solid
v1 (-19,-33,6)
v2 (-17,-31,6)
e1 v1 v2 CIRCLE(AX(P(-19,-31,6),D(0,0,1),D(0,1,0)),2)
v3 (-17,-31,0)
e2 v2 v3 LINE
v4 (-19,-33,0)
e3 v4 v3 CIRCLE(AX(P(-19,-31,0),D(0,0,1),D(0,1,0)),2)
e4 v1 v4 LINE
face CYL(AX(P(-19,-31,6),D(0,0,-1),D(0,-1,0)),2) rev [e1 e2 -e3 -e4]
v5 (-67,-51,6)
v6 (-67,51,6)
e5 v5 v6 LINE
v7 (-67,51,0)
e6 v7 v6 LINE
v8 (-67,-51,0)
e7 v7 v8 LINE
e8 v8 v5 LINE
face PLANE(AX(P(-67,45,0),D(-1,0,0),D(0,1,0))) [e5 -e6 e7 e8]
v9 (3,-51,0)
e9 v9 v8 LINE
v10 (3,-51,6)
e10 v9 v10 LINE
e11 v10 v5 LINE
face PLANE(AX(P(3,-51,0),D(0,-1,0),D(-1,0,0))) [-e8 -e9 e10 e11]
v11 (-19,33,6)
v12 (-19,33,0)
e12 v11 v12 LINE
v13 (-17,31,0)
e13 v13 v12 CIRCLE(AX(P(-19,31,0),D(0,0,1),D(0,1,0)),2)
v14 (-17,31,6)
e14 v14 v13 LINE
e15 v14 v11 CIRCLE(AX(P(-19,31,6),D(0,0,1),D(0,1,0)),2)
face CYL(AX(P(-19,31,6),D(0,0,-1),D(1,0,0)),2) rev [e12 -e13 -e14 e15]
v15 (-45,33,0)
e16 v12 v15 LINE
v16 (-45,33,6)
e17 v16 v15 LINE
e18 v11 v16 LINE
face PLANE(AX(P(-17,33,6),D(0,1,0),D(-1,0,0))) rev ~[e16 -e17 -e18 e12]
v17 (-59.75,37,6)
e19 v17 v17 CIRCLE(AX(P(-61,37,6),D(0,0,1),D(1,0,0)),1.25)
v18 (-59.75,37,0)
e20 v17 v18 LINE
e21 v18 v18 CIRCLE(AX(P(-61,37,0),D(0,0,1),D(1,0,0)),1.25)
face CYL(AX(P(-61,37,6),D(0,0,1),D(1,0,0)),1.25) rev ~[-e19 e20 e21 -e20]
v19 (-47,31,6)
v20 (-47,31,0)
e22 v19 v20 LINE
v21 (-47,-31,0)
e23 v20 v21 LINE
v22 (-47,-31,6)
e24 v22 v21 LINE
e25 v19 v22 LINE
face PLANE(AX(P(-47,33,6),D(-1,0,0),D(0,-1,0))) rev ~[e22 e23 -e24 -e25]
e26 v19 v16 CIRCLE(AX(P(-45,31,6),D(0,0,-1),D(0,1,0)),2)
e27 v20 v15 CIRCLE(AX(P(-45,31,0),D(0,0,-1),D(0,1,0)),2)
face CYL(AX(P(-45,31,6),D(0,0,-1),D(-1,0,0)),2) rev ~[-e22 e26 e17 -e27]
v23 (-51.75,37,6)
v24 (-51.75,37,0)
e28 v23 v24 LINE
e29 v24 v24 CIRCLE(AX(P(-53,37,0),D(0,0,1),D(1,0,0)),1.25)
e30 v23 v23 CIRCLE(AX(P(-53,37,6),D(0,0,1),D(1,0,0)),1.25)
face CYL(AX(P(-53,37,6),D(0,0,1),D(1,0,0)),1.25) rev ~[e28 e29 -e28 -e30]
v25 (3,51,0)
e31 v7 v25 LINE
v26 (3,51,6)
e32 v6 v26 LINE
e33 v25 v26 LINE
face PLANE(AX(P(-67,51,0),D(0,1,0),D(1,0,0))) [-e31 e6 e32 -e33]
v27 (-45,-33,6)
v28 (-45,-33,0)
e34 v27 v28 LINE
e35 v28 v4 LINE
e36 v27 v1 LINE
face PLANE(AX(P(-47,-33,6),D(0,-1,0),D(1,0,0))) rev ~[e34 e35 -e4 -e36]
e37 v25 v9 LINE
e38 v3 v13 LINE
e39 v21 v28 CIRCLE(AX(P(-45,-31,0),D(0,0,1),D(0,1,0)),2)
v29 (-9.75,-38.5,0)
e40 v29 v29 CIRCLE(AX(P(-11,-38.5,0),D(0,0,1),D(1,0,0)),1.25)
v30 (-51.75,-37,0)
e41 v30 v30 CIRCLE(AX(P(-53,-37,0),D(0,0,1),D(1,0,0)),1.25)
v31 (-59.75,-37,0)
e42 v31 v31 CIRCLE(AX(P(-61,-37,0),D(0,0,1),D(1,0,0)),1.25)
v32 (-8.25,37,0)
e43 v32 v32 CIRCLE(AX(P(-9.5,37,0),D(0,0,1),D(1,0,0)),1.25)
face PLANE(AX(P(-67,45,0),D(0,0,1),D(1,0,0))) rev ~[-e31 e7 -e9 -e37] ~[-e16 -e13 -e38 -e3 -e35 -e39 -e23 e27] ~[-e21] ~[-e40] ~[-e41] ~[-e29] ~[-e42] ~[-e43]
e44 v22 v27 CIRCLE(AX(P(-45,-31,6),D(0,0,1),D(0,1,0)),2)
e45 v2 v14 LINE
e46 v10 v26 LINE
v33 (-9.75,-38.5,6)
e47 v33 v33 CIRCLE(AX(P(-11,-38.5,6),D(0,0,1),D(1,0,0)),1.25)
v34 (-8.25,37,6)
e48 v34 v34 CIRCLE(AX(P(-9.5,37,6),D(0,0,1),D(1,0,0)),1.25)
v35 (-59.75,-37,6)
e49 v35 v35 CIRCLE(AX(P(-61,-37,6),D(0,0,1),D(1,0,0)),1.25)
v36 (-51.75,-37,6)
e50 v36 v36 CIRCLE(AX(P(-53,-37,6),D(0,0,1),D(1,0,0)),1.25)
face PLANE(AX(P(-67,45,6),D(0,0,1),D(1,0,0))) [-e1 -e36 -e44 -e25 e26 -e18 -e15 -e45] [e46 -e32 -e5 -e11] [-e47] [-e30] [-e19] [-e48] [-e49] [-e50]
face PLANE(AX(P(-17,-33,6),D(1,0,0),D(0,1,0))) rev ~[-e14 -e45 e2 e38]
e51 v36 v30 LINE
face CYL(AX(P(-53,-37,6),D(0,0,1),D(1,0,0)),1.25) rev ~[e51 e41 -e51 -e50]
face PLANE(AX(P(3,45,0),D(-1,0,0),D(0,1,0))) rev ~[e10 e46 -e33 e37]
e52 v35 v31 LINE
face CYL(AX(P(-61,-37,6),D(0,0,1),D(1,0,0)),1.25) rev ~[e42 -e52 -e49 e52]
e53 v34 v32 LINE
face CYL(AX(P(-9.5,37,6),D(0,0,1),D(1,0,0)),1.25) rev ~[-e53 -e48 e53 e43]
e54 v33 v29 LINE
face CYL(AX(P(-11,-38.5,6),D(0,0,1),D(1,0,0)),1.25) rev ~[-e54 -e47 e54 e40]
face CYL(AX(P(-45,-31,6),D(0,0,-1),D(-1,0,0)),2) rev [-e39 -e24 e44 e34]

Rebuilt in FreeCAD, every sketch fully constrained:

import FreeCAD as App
import Part
import Sketcher

V = App.Vector


def edges_at(feature, points):
    """Names of the edges that pass closest to the given points."""
    edges = feature.Shape.Edges
    near = lambda p: min(range(len(edges)), key=lambda i: edges[i].distToShape(Part.Vertex(*p))[0])
    return sorted({f"Edge{near(p) + 1}" for p in points})

doc = App.newDocument("Part")
body = doc.addObject("PartDesign::Body", "Body")

# Sketch on XY plane
sketch1 = doc.addObject("Sketcher::SketchObject", "Sketch")
body.addObject(sketch1)
sketch1.AttachmentSupport = (doc.XY_Plane, [""])
sketch1.MapMode = "FlatFace"
sketch1.addGeometry([
    Part.LineSegment(V(-67, 51, 0), V(-67, -51, 0)),
    Part.LineSegment(V(-67, -51, 0), V(3, -51, 0)),
    Part.LineSegment(V(3, -51, 0), V(3, 51, 0)),
    Part.LineSegment(V(3, 51, 0), V(-67, 51, 0)),
], False)
sketch1.addConstraint([
    Sketcher.Constraint("Coincident", 0, 2, 1, 1),
    Sketcher.Constraint("Coincident", 1, 2, 2, 1),
    Sketcher.Constraint("Coincident", 2, 2, 3, 1),
    Sketcher.Constraint("Coincident", 3, 2, 0, 1),
    Sketcher.Constraint("Vertical", 0),
    Sketcher.Constraint("Horizontal", 1),
    Sketcher.Constraint("Vertical", 2),
    Sketcher.Constraint("Horizontal", 3),
    Sketcher.Constraint("DistanceX", 1, 1, 1, 2, 70.0),
    Sketcher.Constraint("DistanceY", 0, 2, 0, 1, 102.0),
    Sketcher.Constraint("DistanceX", 0, 2, -1, 1, 67.0),
    Sketcher.Constraint("DistanceY", 0, 2, -1, 1, 51.0),
])
pad1 = doc.addObject("PartDesign::Pad", "Pad")
body.addObject(pad1)
pad1.Profile = sketch1
pad1.Length = 6

# Sketch on XY plane
sketch2 = doc.addObject("Sketcher::SketchObject", "Sketch001")
body.addObject(sketch2)
sketch2.AttachmentSupport = (doc.XY_Plane, [""])
sketch2.MapMode = "FlatFace"
sketch2.AttachmentOffset = App.Placement(V(0, 0, 6), App.Rotation())
sketch2.addGeometry([
    Part.Circle(V(-61, 37, 0), V(0, 0, 1), 1.25),  # 0
    Part.Circle(V(-53, 37, 0), V(0, 0, 1), 1.25),  # 1
    Part.Circle(V(-9.5, 37, 0), V(0, 0, 1), 1.25),  # 2
    Part.Circle(V(-11, -38.5, 0), V(0, 0, 1), 1.25),  # 3
    Part.Circle(V(-53, -37, 0), V(0, 0, 1), 1.25),  # 4
    Part.Circle(V(-61, -37, 0), V(0, 0, 1), 1.25),  # 5
], False)
sketch2.addConstraint([
    Sketcher.Constraint("Equal", 0, 1),
    Sketcher.Constraint("Equal", 1, 2),
    Sketcher.Constraint("Equal", 2, 3),
    Sketcher.Constraint("Equal", 3, 4),
    Sketcher.Constraint("Equal", 4, 5),
    Sketcher.Constraint("Symmetric", 1, 3, 4, 3, -1),
    Sketcher.Constraint("Symmetric", 0, 3, 5, 3, -1),
    Sketcher.Constraint("Horizontal", 0, 3, 1, 3),
    Sketcher.Constraint("Horizontal", 1, 3, 2, 3),
    Sketcher.Constraint("Diameter", 0, 2.5),
    Sketcher.Constraint("DistanceX", 0, 3, -1, 1, 61.0),
    Sketcher.Constraint("DistanceY", -1, 1, 0, 3, 37.0),
    Sketcher.Constraint("DistanceX", 1, 3, -1, 1, 53.0),
    Sketcher.Constraint("DistanceX", 3, 3, -1, 1, 11.0),
    Sketcher.Constraint("DistanceX", 2, 3, -1, 1, 9.5),
    Sketcher.Constraint("DistanceY", 3, 3, -1, 1, 38.5),
])
pocket1 = doc.addObject("PartDesign::Pocket", "Pocket")
body.addObject(pocket1)
pocket1.Profile = sketch2
pocket1.Length = 6

# Sketch on XY plane
sketch3 = doc.addObject("Sketcher::SketchObject", "Sketch002")
body.addObject(sketch3)
sketch3.AttachmentSupport = (doc.XY_Plane, [""])
sketch3.MapMode = "FlatFace"
sketch3.AttachmentOffset = App.Placement(V(0, 0, 6), App.Rotation())
sketch3.addGeometry([
    Part.LineSegment(V(-47, 33, 0), V(-47, -33, 0)),
    Part.LineSegment(V(-47, -33, 0), V(-17, -33, 0)),
    Part.LineSegment(V(-17, -33, 0), V(-17, 33, 0)),
    Part.LineSegment(V(-17, 33, 0), V(-47, 33, 0)),
], False)
sketch3.addConstraint([
    Sketcher.Constraint("Coincident", 0, 2, 1, 1),
    Sketcher.Constraint("Coincident", 1, 2, 2, 1),
    Sketcher.Constraint("Coincident", 2, 2, 3, 1),
    Sketcher.Constraint("Coincident", 3, 2, 0, 1),
    Sketcher.Constraint("Vertical", 0),
    Sketcher.Constraint("Horizontal", 1),
    Sketcher.Constraint("Vertical", 2),
    Sketcher.Constraint("Horizontal", 3),
    Sketcher.Constraint("DistanceX", 1, 1, 1, 2, 30.0),
    Sketcher.Constraint("DistanceY", 0, 2, 0, 1, 66.0),
    Sketcher.Constraint("DistanceX", 0, 2, -1, 1, 47.0),
    Sketcher.Constraint("DistanceY", 0, 2, -1, 1, 33.0),
])
pocket2 = doc.addObject("PartDesign::Pocket", "Pocket001")
body.addObject(pocket2)
pocket2.Profile = sketch3
pocket2.Length = 6
doc.recompute()

fillet = doc.addObject("PartDesign::Fillet", "Fillet")
body.addObject(fillet)
fillet.Base = (pocket2, edges_at(pocket2, [
    (-47, -33, 3),
    (-17, -33, 3),
    (-47, 33, 3),
    (-17, 33, 3),
]))
fillet.Radius = 2

doc.recompute()
